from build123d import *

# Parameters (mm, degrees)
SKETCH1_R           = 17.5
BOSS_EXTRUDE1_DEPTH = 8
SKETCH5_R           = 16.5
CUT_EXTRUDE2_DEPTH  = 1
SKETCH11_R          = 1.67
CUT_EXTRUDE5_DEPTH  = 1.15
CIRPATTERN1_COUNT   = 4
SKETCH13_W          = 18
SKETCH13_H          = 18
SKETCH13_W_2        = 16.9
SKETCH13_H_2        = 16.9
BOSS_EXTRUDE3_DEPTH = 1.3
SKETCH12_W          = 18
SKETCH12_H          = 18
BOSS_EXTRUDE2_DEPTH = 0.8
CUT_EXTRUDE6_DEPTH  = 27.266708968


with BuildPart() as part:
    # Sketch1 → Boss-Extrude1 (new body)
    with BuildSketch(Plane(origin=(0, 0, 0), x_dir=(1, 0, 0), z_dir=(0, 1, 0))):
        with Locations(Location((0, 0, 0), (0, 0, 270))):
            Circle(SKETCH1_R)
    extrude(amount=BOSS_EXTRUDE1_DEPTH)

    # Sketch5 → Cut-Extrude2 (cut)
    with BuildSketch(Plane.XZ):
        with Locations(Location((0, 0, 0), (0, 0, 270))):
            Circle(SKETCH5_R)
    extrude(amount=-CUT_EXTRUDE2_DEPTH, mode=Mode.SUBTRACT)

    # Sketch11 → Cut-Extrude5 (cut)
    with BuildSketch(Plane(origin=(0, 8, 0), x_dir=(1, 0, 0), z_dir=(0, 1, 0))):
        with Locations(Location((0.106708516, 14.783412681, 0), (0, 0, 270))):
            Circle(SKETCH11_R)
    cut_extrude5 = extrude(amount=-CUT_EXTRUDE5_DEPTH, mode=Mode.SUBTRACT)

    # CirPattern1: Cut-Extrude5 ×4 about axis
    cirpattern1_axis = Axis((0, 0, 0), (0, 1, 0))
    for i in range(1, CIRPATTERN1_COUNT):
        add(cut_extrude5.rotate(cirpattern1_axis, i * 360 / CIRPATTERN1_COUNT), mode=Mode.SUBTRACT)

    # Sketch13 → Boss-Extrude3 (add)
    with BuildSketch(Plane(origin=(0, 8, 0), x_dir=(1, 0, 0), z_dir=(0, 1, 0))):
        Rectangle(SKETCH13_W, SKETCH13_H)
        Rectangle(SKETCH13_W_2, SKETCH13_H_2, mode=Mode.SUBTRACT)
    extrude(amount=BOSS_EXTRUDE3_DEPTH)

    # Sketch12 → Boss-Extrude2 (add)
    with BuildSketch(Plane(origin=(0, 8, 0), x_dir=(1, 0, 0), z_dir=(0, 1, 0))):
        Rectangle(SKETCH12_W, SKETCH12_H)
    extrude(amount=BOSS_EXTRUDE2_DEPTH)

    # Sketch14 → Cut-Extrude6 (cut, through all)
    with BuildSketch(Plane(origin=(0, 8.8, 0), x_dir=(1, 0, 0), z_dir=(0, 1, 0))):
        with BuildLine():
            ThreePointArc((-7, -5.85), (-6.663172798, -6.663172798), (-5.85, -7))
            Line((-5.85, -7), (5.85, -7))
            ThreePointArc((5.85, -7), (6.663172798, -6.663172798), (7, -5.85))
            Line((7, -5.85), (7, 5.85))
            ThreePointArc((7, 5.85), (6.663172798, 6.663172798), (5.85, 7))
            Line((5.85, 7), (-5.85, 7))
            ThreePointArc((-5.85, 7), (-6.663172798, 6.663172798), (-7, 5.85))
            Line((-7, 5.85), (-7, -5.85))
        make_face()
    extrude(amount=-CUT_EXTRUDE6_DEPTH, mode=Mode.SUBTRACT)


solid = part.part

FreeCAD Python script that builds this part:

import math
import FreeCAD as App
import Part
import Sketcher
Q = App.Units.Quantity

doc = App.newDocument("Part")
body = doc.addObject("PartDesign::Body", "Body")

# Sketch on XZ plane
sketch1 = body.newObject("Sketcher::SketchObject", "Sketch")
sketch1.AttachmentSupport = (doc.getObject("XZ_Plane"), [""])
sketch1.MapMode = "FlatFace"
sketch1.addGeometry(Part.Circle(App.Vector(0, 0, 0), App.Vector(0, 0, 1), 18), False)
sketch1.addConstraint(Sketcher.Constraint("Coincident", 0, 3, -1, 1))
sketch1.addConstraint(Sketcher.Constraint("Diameter", 0, Q("35 mm")))
pad1 = body.newObject("PartDesign::Pad", "Pad")
pad1.Profile = sketch1
pad1.Length = 8
pad1.Reversed = True

# Sketch on XZ plane
sketch2 = body.newObject("Sketcher::SketchObject", "Sketch001")
sketch2.AttachmentSupport = (doc.getObject("XZ_Plane"), [""])
sketch2.MapMode = "FlatFace"
sketch2.addGeometry(Part.Circle(App.Vector(0, 0, 0), App.Vector(0, 0, 1), 16), False)
sketch2.addConstraint(Sketcher.Constraint("Coincident", 0, 3, -1, 1))
sketch2.addConstraint(Sketcher.Constraint("Diameter", 0, Q("33 mm")))
pocket1 = body.newObject("PartDesign::Pocket", "Pocket")
pocket1.Profile = sketch2
pocket1.Length = 1

# Sketch on XZ plane
sketch3 = body.newObject("Sketcher::SketchObject", "Sketch002")
sketch3.AttachmentSupport = (doc.getObject("XZ_Plane"), [""])
sketch3.MapMode = "FlatFace"
sketch3.AttachmentOffset = App.Placement(App.Vector(0, 0, -8), App.Rotation())
sketch3.addGeometry(Part.Circle(App.Vector(0.1, -14.8, 0), App.Vector(0, 0, 1), 1.7), False)
sketch3.addConstraint(Sketcher.Constraint("Diameter", 0, Q("3.34 mm")))
sketch3.addConstraint(Sketcher.Constraint("DistanceX", -1, 1, 0, 3, Q("0.106709 mm")))
sketch3.addConstraint(Sketcher.Constraint("DistanceY", 0, 3, -1, 1, Q("14.783413 mm")))
pocket2 = body.newObject("PartDesign::Pocket", "Pocket001")
pocket2.Profile = sketch3
pocket2.Length = 1.15
pocket2.Reversed = True
doc.recompute()

polarpattern = body.newObject("PartDesign::PolarPattern", "PolarPattern")
polarpattern.Originals = [pocket2]
polarpattern.Axis = (doc.getObject("Y_Axis"), [""])
polarpattern.Angle = 360
polarpattern.Occurrences = 4
body.Tip = polarpattern

# Sketch on XZ plane
sketch4 = body.newObject("Sketcher::SketchObject", "Sketch003")
sketch4.AttachmentSupport = (doc.getObject("XZ_Plane"), [""])
sketch4.MapMode = "FlatFace"
sketch4.AttachmentOffset = App.Placement(App.Vector(0, 0, -8), App.Rotation())
sketch4.addGeometry(Part.LineSegment(App.Vector(-9, -9, 0), App.Vector(-9, 9, 0)), False)
sketch4.addGeometry(Part.LineSegment(App.Vector(-9, 9, 0), App.Vector(9, 9, 0)), False)
sketch4.addGeometry(Part.LineSegment(App.Vector(9, 9, 0), App.Vector(9, -9, 0)), False)
sketch4.addGeometry(Part.LineSegment(App.Vector(9, -9, 0), App.Vector(-9, -9, 0)), False)
sketch4.addGeometry(Part.LineSegment(App.Vector(8, 8, 0), App.Vector(-8, 8, 0)), False)
sketch4.addGeometry(Part.LineSegment(App.Vector(-8, 8, 0), App.Vector(-8, -8, 0)), False)
sketch4.addGeometry(Part.LineSegment(App.Vector(-8, -8, 0), App.Vector(8, -8, 0)), False)
sketch4.addGeometry(Part.LineSegment(App.Vector(8, -8, 0), App.Vector(8, 8, 0)), False)
sketch4.addConstraint(Sketcher.Constraint("Coincident", 0, 2, 1, 1))
sketch4.addConstraint(Sketcher.Constraint("Coincident", 1, 2, 2, 1))
sketch4.addConstraint(Sketcher.Constraint("Coincident", 2, 2, 3, 1))
sketch4.addConstraint(Sketcher.Constraint("Coincident", 3, 2, 0, 1))
sketch4.addConstraint(Sketcher.Constraint("Coincident", 4, 2, 5, 1))
sketch4.addConstraint(Sketcher.Constraint("Coincident", 5, 2, 6, 1))
sketch4.addConstraint(Sketcher.Constraint("Coincident", 6, 2, 7, 1))
sketch4.addConstraint(Sketcher.Constraint("Coincident", 7, 2, 4, 1))
sketch4.addConstraint(Sketcher.Constraint("Vertical", 0))
sketch4.addConstraint(Sketcher.Constraint("Horizontal", 1))
sketch4.addConstraint(Sketcher.Constraint("Vertical", 2))
sketch4.addConstraint(Sketcher.Constraint("Horizontal", 3))
sketch4.addConstraint(Sketcher.Constraint("Horizontal", 4))
sketch4.addConstraint(Sketcher.Constraint("Vertical", 5))
sketch4.addConstraint(Sketcher.Constraint("Horizontal", 6))
sketch4.addConstraint(Sketcher.Constraint("Vertical", 7))
sketch4.addConstraint(Sketcher.Constraint("Symmetric", 0, 2, 2, 2, -1, 1))
sketch4.addConstraint(Sketcher.Constraint("Symmetric", 4, 2, 6, 2, -1, 1))
sketch4.addConstraint(Sketcher.Constraint("Equal", 3, 0))
sketch4.addConstraint(Sketcher.Constraint("Equal", 6, 5))
sketch4.addConstraint(Sketcher.Constraint("DistanceX", 1, 1, 1, 2, Q("18 mm")))
sketch4.addConstraint(Sketcher.Constraint("DistanceX", 4, 2, 4, 1, Q("16.9 mm")))
pad2 = body.newObject("PartDesign::Pad", "Pad001")
pad2.Profile = sketch4
pad2.Length = 1.3
pad2.Reversed = True

# Sketch on XZ plane
sketch5 = body.newObject("Sketcher::SketchObject", "Sketch004")
sketch5.AttachmentSupport = (doc.getObject("XZ_Plane"), [""])
sketch5.MapMode = "FlatFace"
sketch5.AttachmentOffset = App.Placement(App.Vector(0, 0, -8), App.Rotation())
sketch5.addGeometry(Part.LineSegment(App.Vector(-9, -9, 0), App.Vector(-9, 9, 0)), False)
sketch5.addGeometry(Part.LineSegment(App.Vector(-9, 9, 0), App.Vector(9, 9, 0)), False)
sketch5.addGeometry(Part.LineSegment(App.Vector(9, 9, 0), App.Vector(9, -9, 0)), False)
sketch5.addGeometry(Part.LineSegment(App.Vector(9, -9, 0), App.Vector(-9, -9, 0)), False)
sketch5.addConstraint(Sketcher.Constraint("Coincident", 0, 2, 1, 1))
sketch5.addConstraint(Sketcher.Constraint("Coincident", 1, 2, 2, 1))
sketch5.addConstraint(Sketcher.Constraint("Coincident", 2, 2, 3, 1))
sketch5.addConstraint(Sketcher.Constraint("Coincident", 3, 2, 0, 1))
sketch5.addConstraint(Sketcher.Constraint("Vertical", 0))
sketch5.addConstraint(Sketcher.Constraint("Horizontal", 1))
sketch5.addConstraint(Sketcher.Constraint("Vertical", 2))
sketch5.addConstraint(Sketcher.Constraint("Horizontal", 3))
sketch5.addConstraint(Sketcher.Constraint("Symmetric", 0, 2, 2, 2, -1, 1))
sketch5.addConstraint(Sketcher.Constraint("Equal", 3, 0))
sketch5.addConstraint(Sketcher.Constraint("DistanceX", 1, 1, 1, 2, Q("18 mm")))
pad3 = body.newObject("PartDesign::Pad", "Pad002")
pad3.Profile = sketch5
pad3.Length = 0.8
pad3.Reversed = True

# Sketch on XZ plane
sketch6 = body.newObject("Sketcher::SketchObject", "Sketch005")
sketch6.AttachmentSupport = (doc.getObject("XZ_Plane"), [""])
sketch6.MapMode = "FlatFace"
sketch6.AttachmentOffset = App.Placement(App.Vector(0, 0, -8.8), App.Rotation())
sketch6.addGeometry(Part.ArcOfCircle(Part.Circle(App.Vector(-5.8, 5.8, 0), App.Vector(0, 0, 1), 1.2), math.radians(90), math.radians(180)), False)
sketch6.addGeometry(Part.LineSegment(App.Vector(-5.8, 7, 0), App.Vector(5.8, 7, 0)), False)
sketch6.addGeometry(Part.ArcOfCircle(Part.Circle(App.Vector(5.8, 5.8, 0), App.Vector(0, 0, 1), 1.2), math.radians(0), math.radians(90)), False)
sketch6.addGeometry(Part.LineSegment(App.Vector(7, 5.8, 0), App.Vector(7, -5.8, 0)), False)
sketch6.addGeometry(Part.ArcOfCircle(Part.Circle(App.Vector(5.8, -5.8, 0), App.Vector(0, 0, 1), 1.2), math.radians(-90), math.radians(0)), False)
sketch6.addGeometry(Part.LineSegment(App.Vector(5.8, -7, 0), App.Vector(-5.8, -7, 0)), False)
sketch6.addGeometry(Part.ArcOfCircle(Part.Circle(App.Vector(-5.8, -5.8, 0), App.Vector(0, 0, 1), 1.2), math.radians(-180), math.radians(-90)), False)
sketch6.addGeometry(Part.LineSegment(App.Vector(-7, -5.8, 0), App.Vector(-7, 5.8, 0)), False)
sketch6.addConstraint(Sketcher.Constraint("Tangent", 0, 1, 1, 1))
sketch6.addConstraint(Sketcher.Constraint("Tangent", 1, 2, 2, 2))
sketch6.addConstraint(Sketcher.Constraint("Tangent", 2, 1, 3, 1))
sketch6.addConstraint(Sketcher.Constraint("Tangent", 3, 2, 4, 2))
sketch6.addConstraint(Sketcher.Constraint("Tangent", 4, 1, 5, 1))
sketch6.addConstraint(Sketcher.Constraint("Tangent", 5, 2, 6, 2))
sketch6.addConstraint(Sketcher.Constraint("Tangent", 6, 1, 7, 1))
sketch6.addConstraint(Sketcher.Constraint("Tangent", 7, 2, 0, 2))
sketch6.addConstraint(Sketcher.Constraint("Horizontal", 1))
sketch6.addConstraint(Sketcher.Constraint("Vertical", 3))
sketch6.addConstraint(Sketcher.Constraint("Horizontal", 5))
sketch6.addConstraint(Sketcher.Constraint("Vertical", 7))
sketch6.addConstraint(Sketcher.Constraint("Equal", 0, 2))
sketch6.addConstraint(Sketcher.Constraint("Equal", 2, 4))
sketch6.addConstraint(Sketcher.Constraint("Equal", 4, 6))
sketch6.addConstraint(Sketcher.Constraint("Symmetric", 0, 3, 4, 3, -1, 1))
sketch6.addConstraint(Sketcher.Constraint("Equal", 5, 3))
sketch6.addConstraint(Sketcher.Constraint("Radius", 0, Q("1.15 mm")))
sketch6.addConstraint(Sketcher.Constraint("DistanceX", 1, 1, 1, 2, Q("11.7 mm")))
pocket3 = body.newObject("PartDesign::Pocket", "Pocket002")
pocket3.Profile = sketch6
pocket3.Type = "ThroughAll"
pocket3.Reversed = True

doc.recompute()
